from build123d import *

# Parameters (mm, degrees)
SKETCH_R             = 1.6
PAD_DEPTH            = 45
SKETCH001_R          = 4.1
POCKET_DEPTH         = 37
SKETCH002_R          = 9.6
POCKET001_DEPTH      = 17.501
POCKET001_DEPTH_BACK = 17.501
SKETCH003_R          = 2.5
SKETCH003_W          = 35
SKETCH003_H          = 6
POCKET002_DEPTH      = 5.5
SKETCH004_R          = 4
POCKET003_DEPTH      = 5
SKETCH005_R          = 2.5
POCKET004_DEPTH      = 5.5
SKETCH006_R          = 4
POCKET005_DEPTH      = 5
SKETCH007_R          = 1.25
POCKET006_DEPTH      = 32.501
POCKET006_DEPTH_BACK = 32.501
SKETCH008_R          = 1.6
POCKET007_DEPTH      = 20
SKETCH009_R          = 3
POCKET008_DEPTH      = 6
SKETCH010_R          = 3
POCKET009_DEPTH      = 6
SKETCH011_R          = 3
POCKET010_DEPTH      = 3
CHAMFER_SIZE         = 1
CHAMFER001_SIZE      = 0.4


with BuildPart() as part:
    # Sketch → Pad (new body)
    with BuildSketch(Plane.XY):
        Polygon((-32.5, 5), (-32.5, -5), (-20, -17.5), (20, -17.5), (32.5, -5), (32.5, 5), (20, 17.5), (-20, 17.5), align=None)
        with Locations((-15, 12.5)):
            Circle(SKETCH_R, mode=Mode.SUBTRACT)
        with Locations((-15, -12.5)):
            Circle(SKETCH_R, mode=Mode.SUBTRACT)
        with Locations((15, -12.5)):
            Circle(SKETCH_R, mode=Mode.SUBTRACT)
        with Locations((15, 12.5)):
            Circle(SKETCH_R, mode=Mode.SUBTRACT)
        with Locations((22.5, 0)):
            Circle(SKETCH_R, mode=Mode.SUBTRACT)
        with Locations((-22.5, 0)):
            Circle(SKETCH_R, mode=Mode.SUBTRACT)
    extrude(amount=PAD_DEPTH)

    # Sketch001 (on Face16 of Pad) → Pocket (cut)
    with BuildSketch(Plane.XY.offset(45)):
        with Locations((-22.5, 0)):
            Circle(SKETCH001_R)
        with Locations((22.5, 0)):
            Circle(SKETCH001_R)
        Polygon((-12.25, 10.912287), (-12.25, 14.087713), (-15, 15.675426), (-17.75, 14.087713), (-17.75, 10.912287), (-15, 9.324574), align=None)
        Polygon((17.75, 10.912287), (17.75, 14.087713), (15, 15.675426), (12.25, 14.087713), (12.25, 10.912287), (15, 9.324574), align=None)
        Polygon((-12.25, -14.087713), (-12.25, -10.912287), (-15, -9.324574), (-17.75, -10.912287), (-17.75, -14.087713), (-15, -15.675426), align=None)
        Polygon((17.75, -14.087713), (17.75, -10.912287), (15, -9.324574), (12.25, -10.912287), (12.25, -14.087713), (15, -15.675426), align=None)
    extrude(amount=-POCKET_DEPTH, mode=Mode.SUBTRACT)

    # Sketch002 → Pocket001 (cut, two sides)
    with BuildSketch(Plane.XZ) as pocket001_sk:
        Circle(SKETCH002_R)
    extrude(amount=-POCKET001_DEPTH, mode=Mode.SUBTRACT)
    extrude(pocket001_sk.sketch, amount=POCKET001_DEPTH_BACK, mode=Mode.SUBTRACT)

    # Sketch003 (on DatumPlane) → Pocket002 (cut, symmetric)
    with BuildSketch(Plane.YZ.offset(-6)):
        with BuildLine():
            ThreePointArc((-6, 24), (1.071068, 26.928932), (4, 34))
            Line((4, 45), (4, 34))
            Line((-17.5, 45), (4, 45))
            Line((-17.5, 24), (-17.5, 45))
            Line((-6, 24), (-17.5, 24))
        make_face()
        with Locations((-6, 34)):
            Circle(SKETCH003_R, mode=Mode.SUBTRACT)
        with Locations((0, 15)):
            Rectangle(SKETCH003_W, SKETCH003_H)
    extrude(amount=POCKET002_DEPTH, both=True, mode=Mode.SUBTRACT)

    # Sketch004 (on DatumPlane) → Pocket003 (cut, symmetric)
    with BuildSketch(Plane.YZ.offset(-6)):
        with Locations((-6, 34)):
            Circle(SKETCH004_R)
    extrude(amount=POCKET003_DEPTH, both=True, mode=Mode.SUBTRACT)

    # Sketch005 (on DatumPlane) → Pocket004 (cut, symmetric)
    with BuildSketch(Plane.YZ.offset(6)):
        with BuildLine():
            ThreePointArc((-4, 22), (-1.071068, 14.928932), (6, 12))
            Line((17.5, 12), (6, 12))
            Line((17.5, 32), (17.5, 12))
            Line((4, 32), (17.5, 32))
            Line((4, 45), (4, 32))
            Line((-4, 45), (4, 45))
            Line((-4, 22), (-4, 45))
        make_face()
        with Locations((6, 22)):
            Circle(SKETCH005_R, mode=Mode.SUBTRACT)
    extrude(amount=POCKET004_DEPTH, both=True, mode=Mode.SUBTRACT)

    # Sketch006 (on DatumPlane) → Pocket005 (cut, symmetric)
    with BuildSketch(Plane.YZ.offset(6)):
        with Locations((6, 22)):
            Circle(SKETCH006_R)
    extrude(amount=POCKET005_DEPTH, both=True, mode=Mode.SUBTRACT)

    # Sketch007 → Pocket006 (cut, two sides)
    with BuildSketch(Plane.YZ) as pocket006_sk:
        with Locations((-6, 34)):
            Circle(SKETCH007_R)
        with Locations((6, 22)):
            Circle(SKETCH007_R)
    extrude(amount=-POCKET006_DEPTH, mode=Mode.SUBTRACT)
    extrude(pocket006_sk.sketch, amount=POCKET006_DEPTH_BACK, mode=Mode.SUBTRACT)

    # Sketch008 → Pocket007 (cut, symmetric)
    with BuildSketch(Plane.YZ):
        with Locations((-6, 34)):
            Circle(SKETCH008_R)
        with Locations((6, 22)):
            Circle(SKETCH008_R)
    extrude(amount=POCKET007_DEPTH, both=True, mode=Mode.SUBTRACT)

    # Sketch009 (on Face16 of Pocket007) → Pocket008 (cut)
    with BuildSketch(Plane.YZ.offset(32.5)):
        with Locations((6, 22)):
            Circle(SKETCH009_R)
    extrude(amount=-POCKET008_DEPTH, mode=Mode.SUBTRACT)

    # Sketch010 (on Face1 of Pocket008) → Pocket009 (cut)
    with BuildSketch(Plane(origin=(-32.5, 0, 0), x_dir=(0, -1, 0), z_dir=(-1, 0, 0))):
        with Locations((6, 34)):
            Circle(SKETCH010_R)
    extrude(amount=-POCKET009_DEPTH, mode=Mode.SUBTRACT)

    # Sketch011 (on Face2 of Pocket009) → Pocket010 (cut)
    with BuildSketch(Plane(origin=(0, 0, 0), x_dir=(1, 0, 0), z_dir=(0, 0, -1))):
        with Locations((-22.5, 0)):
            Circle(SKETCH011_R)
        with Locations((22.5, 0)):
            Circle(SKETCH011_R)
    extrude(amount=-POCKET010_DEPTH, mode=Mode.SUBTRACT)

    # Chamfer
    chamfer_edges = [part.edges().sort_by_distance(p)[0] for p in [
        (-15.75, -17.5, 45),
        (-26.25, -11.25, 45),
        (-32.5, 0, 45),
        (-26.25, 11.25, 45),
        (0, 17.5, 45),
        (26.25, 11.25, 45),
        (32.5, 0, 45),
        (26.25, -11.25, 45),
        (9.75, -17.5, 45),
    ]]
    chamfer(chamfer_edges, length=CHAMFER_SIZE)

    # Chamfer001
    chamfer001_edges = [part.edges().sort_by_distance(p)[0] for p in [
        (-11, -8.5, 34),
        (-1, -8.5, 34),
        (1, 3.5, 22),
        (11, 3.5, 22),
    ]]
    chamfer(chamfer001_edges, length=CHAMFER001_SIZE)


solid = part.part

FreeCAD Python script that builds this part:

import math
import FreeCAD as App
import Part
import Sketcher
Q = App.Units.Quantity


def edges_at(feature, points):
    """Names of the edges that pass closest to the given points."""
    edges = feature.Shape.Edges
    near = lambda p: min(range(len(edges)), key=lambda i: edges[i].distToShape(Part.Vertex(*p))[0])
    return sorted({f"Edge{near(p) + 1}" for p in points})


def add_polygon(sketch, points):
    """Adds a closed chain of lines whose ends are joined by coincident constraints."""
    first, n = sketch.GeometryCount, len(points)
    for a, b in zip(points, points[1:] + points[:1]):
        sketch.addGeometry(Part.LineSegment(App.Vector(*a, 0), App.Vector(*b, 0)), False)
    for i in range(n):
        sketch.addConstraint(Sketcher.Constraint("Coincident", first + i, 2, first + (i + 1) % n, 1))

doc = App.newDocument("Part")
body = doc.addObject("PartDesign::Body", "Body")

# Sketch on XY plane
sketch1 = body.newObject("Sketcher::SketchObject", "Sketch")
sketch1.AttachmentSupport = (doc.getObject("XY_Plane"), [""])
sketch1.MapMode = "FlatFace"
add_polygon(sketch1, [(-32.5, 5), (-32.5, -5), (-20, -17.5), (20, -17.5), (32.5, -5), (32.5, 5), (20, 17.5), (-20, 17.5)])  # lines 0-7
sketch1.addGeometry(Part.Circle(App.Vector(-15, -12.5, 0), App.Vector(0, 0, 1), 1.6), False)  # 8
sketch1.addGeometry(Part.Circle(App.Vector(15, -12.5, 0), App.Vector(0, 0, 1), 1.6), False)  # 9
sketch1.addGeometry(Part.Circle(App.Vector(-22.5, 0, 0), App.Vector(0, 0, 1), 1.6), False)  # 10
sketch1.addGeometry(Part.Circle(App.Vector(-15, 12.5, 0), App.Vector(0, 0, 1), 1.6), False)  # 11
sketch1.addGeometry(Part.Circle(App.Vector(22.5, 0, 0), App.Vector(0, 0, 1), 1.6), False)  # 12
sketch1.addGeometry(Part.Circle(App.Vector(15, 12.5, 0), App.Vector(0, 0, 1), 1.6), False)  # 13
sketch1.addConstraint([
    Sketcher.Constraint("Vertical", 0),
    Sketcher.Constraint("Horizontal", 2),
    Sketcher.Constraint("Vertical", 4),
    Sketcher.Constraint("Horizontal", 6),
    Sketcher.Constraint("Equal", 8, 9),
    Sketcher.Constraint("Equal", 9, 10),
    Sketcher.Constraint("Equal", 10, 11),
    Sketcher.Constraint("Equal", 11, 12),
    Sketcher.Constraint("Equal", 12, 13),
    Sketcher.Constraint("Symmetric", 9, 3, 11, 3, -1, 1),
    Sketcher.Constraint("Symmetric", 10, 3, 12, 3, -1, 1),
    Sketcher.Constraint("Symmetric", 8, 3, 13, 3, -1, 1),
    Sketcher.Constraint("Symmetric", 0, 2, 4, 2, -1, 1),
    Sketcher.Constraint("Symmetric", 1, 2, 5, 2, -1, 1),
    Sketcher.Constraint("Symmetric", 8, 3, 9, 3, -2),
    Sketcher.Constraint("PointOnObject", 10, 3, -1),
    Sketcher.Constraint("Perpendicular", 1, 3),
    Sketcher.Constraint("Perpendicular", 5, 7),
    Sketcher.Constraint("Horizontal", 0, 2, 3, 2),
    Sketcher.Constraint("Horizontal", 4, 2, 7, 2),
    Sketcher.Constraint("Vertical", 2, 2, 5, 2),
    Sketcher.Constraint("Diameter", 8, Q("3.2 mm")),
    Sketcher.Constraint("DistanceX", 2, 1, 2, 2, Q("40 mm")),
    Sketcher.Constraint("DistanceY", 0, 2, 0, 1, Q("10 mm")),
    Sketcher.Constraint("DistanceX", 8, 3, -1, 1, Q("15 mm")),
    Sketcher.Constraint("DistanceY", 8, 3, 11, 3, Q("25 mm")),
    Sketcher.Constraint("DistanceX", 10, 3, 12, 3, Q("45 mm")),
    Sketcher.Constraint("DistanceX", 0, 2, 10, 3, Q("10 mm")),
])
pad1 = body.newObject("PartDesign::Pad", "Pad")
pad1.Profile = sketch1
pad1.Length = 45

# Sketch on XY plane
sketch2 = body.newObject("Sketcher::SketchObject", "Sketch001")
sketch2.AttachmentSupport = (doc.getObject("XY_Plane"), [""])
sketch2.MapMode = "FlatFace"
sketch2.AttachmentOffset = App.Placement(App.Vector(0, 0, 45), App.Rotation())
sketch2.addGeometry(Part.Circle(App.Vector(-22.5, 0, 0), App.Vector(0, 0, 1), 4.1), False)  # 0
sketch2.addGeometry(Part.Circle(App.Vector(22.5, 0, 0), App.Vector(0, 0, 1), 4.1), False)  # 1
add_polygon(sketch2, [(-12.2, 10.9), (-12.2, 14.1), (-15, 15.7), (-17.8, 14.1), (-17.8, 10.9), (-15, 9.3)])  # lines 2-7
add_polygon(sketch2, [(17.8, 10.9), (17.8, 14.1), (15, 15.7), (12.2, 14.1), (12.2, 10.9), (15, 9.3)])  # lines 8-13
add_polygon(sketch2, [(-12.2, -14.1), (-12.2, -10.9), (-15, -9.3), (-17.8, -10.9), (-17.8, -14.1), (-15, -15.7)])  # lines 14-19
add_polygon(sketch2, [(17.8, -14.1), (17.8, -10.9), (15, -9.3), (12.2, -10.9), (12.2, -14.1), (15, -15.7)])  # lines 20-25
sketch2.addConstraint([
    Sketcher.Constraint("Vertical", 2),
    Sketcher.Constraint("Vertical", 5),
    Sketcher.Constraint("Vertical", 8),
    Sketcher.Constraint("Vertical", 11),
    Sketcher.Constraint("Vertical", 14),
    Sketcher.Constraint("Vertical", 17),
    Sketcher.Constraint("Vertical", 20),
    Sketcher.Constraint("Vertical", 23),
    Sketcher.Constraint("Equal", 0, 1),
    Sketcher.Constraint("Symmetric", 0, 3, 1, 3, -1, 1),
    Sketcher.Constraint("Symmetric", 11, 2, 14, 2, -1, 1),
    Sketcher.Constraint("Symmetric", 12, 2, 15, 2, -1, 1),
    Sketcher.Constraint("Symmetric", 13, 2, 16, 2, -1, 1),
    Sketcher.Constraint("Symmetric", 9, 2, 18, 2, -1, 1),
    Sketcher.Constraint("Symmetric", 5, 2, 20, 2, -1, 1),
    Sketcher.Constraint("Symmetric", 6, 2, 21, 2, -1, 1),
    Sketcher.Constraint("Symmetric", 7, 2, 22, 2, -1, 1),
    Sketcher.Constraint("Symmetric", 3, 2, 24, 2, -1, 1),
    Sketcher.Constraint("Symmetric", 4, 2, 8, 2, -2),
    Sketcher.Constraint("Symmetric", 3, 2, 9, 2, -2),
    Sketcher.Constraint("Symmetric", 2, 2, 10, 2, -2),
    Sketcher.Constraint("Symmetric", 6, 2, 12, 2, -2),
    Sketcher.Constraint("PointOnObject", 0, 3, -1),
    Sketcher.Constraint("Parallel", 3, 6),
    Sketcher.Constraint("Parallel", 4, 7),
    Sketcher.Constraint("Parallel", 6, 9),
    Sketcher.Constraint("Parallel", 9, 12),
    Sketcher.Constraint("Parallel", 10, 13),
    Sketcher.Constraint("Parallel", 15, 18),
    Sketcher.Constraint("Parallel", 16, 19),
    Sketcher.Constraint("Parallel", 21, 24),
    Sketcher.Constraint("Parallel", 22, 25),
    Sketcher.Constraint("Horizontal", 2, 2, 4, 2),
    Sketcher.Constraint("Horizontal", 5, 2, 7, 2),
    Sketcher.Constraint("Diameter", 0, Q("8.2 mm")),
    Sketcher.Constraint("Angle", 3, Q("150.000004 deg")),
    Sketcher.Constraint("DistanceX", 3, 2, -1, 1, Q("15 mm")),
    Sketcher.Constraint("DistanceX", 0, 3, 1, 3, Q("45 mm")),
    Sketcher.Constraint("DistanceY", 14, 2, 2, 2, Q("25 mm")),
    Sketcher.Constraint("DistanceX", 4, 2, 2, 2, Q("5.5 mm")),
    Sketcher.Constraint("DistanceY", 2, 1, 2, 2, Q("3.175426 mm")),
])
pocket1 = body.newObject("PartDesign::Pocket", "Pocket")
pocket1.Profile = sketch2
pocket1.Length = 37

# Sketch on XZ plane
sketch3 = body.newObject("Sketcher::SketchObject", "Sketch002")
sketch3.AttachmentSupport = (doc.getObject("XZ_Plane"), [""])
sketch3.MapMode = "FlatFace"
sketch3.addGeometry(Part.Circle(App.Vector(0, 0, 0), App.Vector(0, 0, 1), 10), False)
sketch3.addConstraint([
    Sketcher.Constraint("Coincident", 0, 3, -1, 1),
    Sketcher.Constraint("Diameter", 0, Q("19.2 mm")),
])
pocket2 = body.newObject("PartDesign::Pocket", "Pocket001")
pocket2.Profile = sketch3
pocket2.Type = "ThroughAll"
pocket2.Midplane = True

# Sketch on YZ plane
sketch4 = body.newObject("Sketcher::SketchObject", "Sketch003")
sketch4.AttachmentSupport = (doc.getObject("YZ_Plane"), [""])
sketch4.MapMode = "FlatFace"
sketch4.AttachmentOffset = App.Placement(App.Vector(0, 0, -6), App.Rotation())
sketch4.addGeometry(Part.ArcOfCircle(Part.Circle(App.Vector(-6, 34, 0), App.Vector(0, 0, 1), 10), math.radians(-90), math.radians(0)), False)  # 0
sketch4.addGeometry(Part.LineSegment(App.Vector(4, 34, 0), App.Vector(4, 45, 0)), False)  # 1
sketch4.addGeometry(Part.LineSegment(App.Vector(4, 45, 0), App.Vector(-17.5, 45, 0)), False)  # 2
sketch4.addGeometry(Part.LineSegment(App.Vector(-17.5, 45, 0), App.Vector(-17.5, 24, 0)), False)  # 3
sketch4.addGeometry(Part.LineSegment(App.Vector(-17.5, 24, 0), App.Vector(-6, 24, 0)), False)  # 4
sketch4.addGeometry(Part.Circle(App.Vector(-6, 34, 0), App.Vector(0, 0, 1), 2.5), False)  # 5
add_polygon(sketch4, [(-17.5, 18), (-17.5, 12), (17.5, 12), (17.5, 18)])  # lines 6-9
sketch4.addConstraint([
    Sketcher.Constraint("Tangent", 0, 2, 1, 1),
    Sketcher.Constraint("Coincident", 1, 2, 2, 1),
    Sketcher.Constraint("Coincident", 2, 2, 3, 1),
    Sketcher.Constraint("Coincident", 3, 2, 4, 1),
    Sketcher.Constraint("Tangent", 4, 2, 0, 1),
    Sketcher.Constraint("Vertical", 1),
    Sketcher.Constraint("Horizontal", 2),
    Sketcher.Constraint("Vertical", 3),
    Sketcher.Constraint("Horizontal", 4),
    Sketcher.Constraint("Vertical", 6),
    Sketcher.Constraint("Horizontal", 7),
    Sketcher.Constraint("Vertical", 8),
    Sketcher.Constraint("Horizontal", 9),
    Sketcher.Constraint("Coincident", 5, 3, 0, 3),
    Sketcher.Constraint("Vertical", 3, 2, 6, 2),
    Sketcher.Constraint("Diameter", 5, Q("5 mm")),
    Sketcher.Constraint("Radius", 0, Q("9.999999 mm")),
    Sketcher.Constraint("DistanceX", 7, 1, 7, 2, Q("35 mm")),
    Sketcher.Constraint("DistanceY", 1, 1, 1, 2, Q("11 mm")),
    Sketcher.Constraint("DistanceY", 6, 2, 6, 1, Q("6 mm")),
    Sketcher.Constraint("DistanceX", 2, 2, 2, 1, Q("21.5 mm")),
    Sketcher.Constraint("DistanceX", 0, 3, -1, 1, Q("5.999999 mm")),
    Sketcher.Constraint("DistanceY", -1, 1, 0, 3, Q("33.999999 mm")),
    Sketcher.Constraint("DistanceY", -1, 1, 6, 2, Q("12 mm")),
])
pocket3 = body.newObject("PartDesign::Pocket", "Pocket002")
pocket3.Profile = sketch4
pocket3.Length = 11
pocket3.Midplane = True

# Sketch on YZ plane
sketch5 = body.newObject("Sketcher::SketchObject", "Sketch004")
sketch5.AttachmentSupport = (doc.getObject("YZ_Plane"), [""])
sketch5.MapMode = "FlatFace"
sketch5.AttachmentOffset = App.Placement(App.Vector(0, 0, -6), App.Rotation())
sketch5.addGeometry(Part.Circle(App.Vector(-6, 34, 0), App.Vector(0, 0, 1), 4), False)
sketch5.addConstraint([
    Sketcher.Constraint("Diameter", 0, Q("8 mm")),
    Sketcher.Constraint("DistanceX", 0, 3, -1, 1, Q("6 mm")),
    Sketcher.Constraint("DistanceY", -1, 1, 0, 3, Q("34 mm")),
])
pocket4 = body.newObject("PartDesign::Pocket", "Pocket003")
pocket4.Profile = sketch5
pocket4.Length = 10
pocket4.Midplane = True

# Sketch on YZ plane
sketch6 = body.newObject("Sketcher::SketchObject", "Sketch005")
sketch6.AttachmentSupport = (doc.getObject("YZ_Plane"), [""])
sketch6.MapMode = "FlatFace"
sketch6.AttachmentOffset = App.Placement(App.Vector(0, 0, 6), App.Rotation())
sketch6.addGeometry([
    Part.ArcOfCircle(Part.Circle(App.Vector(6, 22, 0), App.Vector(0, 0, 1), 10), math.radians(180), math.radians(270)),  # 0
    Part.LineSegment(App.Vector(6, 12, 0), App.Vector(17.5, 12, 0)),  # 1
    Part.LineSegment(App.Vector(17.5, 12, 0), App.Vector(17.5, 32, 0)),  # 2
    Part.LineSegment(App.Vector(17.5, 32, 0), App.Vector(4, 32, 0)),  # 3
    Part.LineSegment(App.Vector(4, 32, 0), App.Vector(4, 45, 0)),  # 4
    Part.LineSegment(App.Vector(4, 45, 0), App.Vector(-4, 45, 0)),  # 5
    Part.LineSegment(App.Vector(-4, 45, 0), App.Vector(-4, 22, 0)),  # 6
    Part.Circle(App.Vector(6, 22, 0), App.Vector(0, 0, 1), 2.5),  # 7
], False)
sketch6.addConstraint([
    Sketcher.Constraint("Tangent", 0, 2, 1, 1),
    Sketcher.Constraint("Coincident", 1, 2, 2, 1),
    Sketcher.Constraint("Coincident", 2, 2, 3, 1),
    Sketcher.Constraint("Coincident", 3, 2, 4, 1),
    Sketcher.Constraint("Coincident", 4, 2, 5, 1),
    Sketcher.Constraint("Coincident", 5, 2, 6, 1),
    Sketcher.Constraint("Tangent", 6, 2, 0, 1),
    Sketcher.Constraint("Horizontal", 1),
    Sketcher.Constraint("Vertical", 2),
    Sketcher.Constraint("Horizontal", 3),
    Sketcher.Constraint("Vertical", 4),
    Sketcher.Constraint("Horizontal", 5),
    Sketcher.Constraint("Vertical", 6),
    Sketcher.Constraint("Coincident", 7, 3, 0, 3),
    Sketcher.Constraint("Diameter", 7, Q("5 mm")),
    Sketcher.Constraint("Radius", 0, Q("9.999999 mm")),
    Sketcher.Constraint("DistanceX", 5, 2, 5, 1, Q("8 mm")),
    Sketcher.Constraint("DistanceY", 2, 1, 2, 2, Q("20 mm")),
    Sketcher.Constraint("DistanceY", 4, 1, 4, 2, Q("13 mm")),
    Sketcher.Constraint("DistanceX", 1, 1, 1, 2, Q("11.5 mm")),
    Sketcher.Constraint("DistanceX", -1, 1, 0, 3, Q("5.999999 mm")),
    Sketcher.Constraint("DistanceY", -1, 1, 0, 3, Q("21.999999 mm")),
])
pocket5 = body.newObject("PartDesign::Pocket", "Pocket004")
pocket5.Profile = sketch6
pocket5.Length = 11
pocket5.Midplane = True

# Sketch on YZ plane
sketch7 = body.newObject("Sketcher::SketchObject", "Sketch006")
sketch7.AttachmentSupport = (doc.getObject("YZ_Plane"), [""])
sketch7.MapMode = "FlatFace"
sketch7.AttachmentOffset = App.Placement(App.Vector(0, 0, 6), App.Rotation())
sketch7.addGeometry(Part.Circle(App.Vector(6, 22, 0), App.Vector(0, 0, 1), 4), False)
sketch7.addConstraint([
    Sketcher.Constraint("Diameter", 0, Q("8 mm")),
    Sketcher.Constraint("DistanceX", -1, 1, 0, 3, Q("6 mm")),
    Sketcher.Constraint("DistanceY", -1, 1, 0, 3, Q("22 mm")),
])
pocket6 = body.newObject("PartDesign::Pocket", "Pocket005")
pocket6.Profile = sketch7
pocket6.Length = 10
pocket6.Midplane = True

# Sketch on YZ plane
sketch8 = body.newObject("Sketcher::SketchObject", "Sketch007")
sketch8.AttachmentSupport = (doc.getObject("YZ_Plane"), [""])
sketch8.MapMode = "FlatFace"
sketch8.addGeometry([
    Part.Circle(App.Vector(-6, 34, 0), App.Vector(0, 0, 1), 1.2),
    Part.Circle(App.Vector(6, 22, 0), App.Vector(0, 0, 1), 1.2),
], False)
sketch8.addConstraint([
    Sketcher.Constraint("Equal", 0, 1),
    Sketcher.Constraint("Diameter", 0, Q("2.5 mm")),
    Sketcher.Constraint("DistanceX", 0, 3, -1, 1, Q("6 mm")),
    Sketcher.Constraint("DistanceY", -1, 1, 0, 3, Q("34 mm")),
    Sketcher.Constraint("DistanceX", -1, 1, 1, 3, Q("6 mm")),
    Sketcher.Constraint("DistanceY", -1, 1, 1, 3, Q("22 mm")),
])
pocket7 = body.newObject("PartDesign::Pocket", "Pocket006")
pocket7.Profile = sketch8
pocket7.Type = "ThroughAll"
pocket7.Midplane = True

# Sketch on YZ plane
sketch9 = body.newObject("Sketcher::SketchObject", "Sketch008")
sketch9.AttachmentSupport = (doc.getObject("YZ_Plane"), [""])
sketch9.MapMode = "FlatFace"
sketch9.addGeometry([
    Part.Circle(App.Vector(-6, 34, 0), App.Vector(0, 0, 1), 1.6),
    Part.Circle(App.Vector(6, 22, 0), App.Vector(0, 0, 1), 1.6),
], False)
sketch9.addConstraint([
    Sketcher.Constraint("Equal", 0, 1),
    Sketcher.Constraint("Diameter", 0, Q("3.2 mm")),
    Sketcher.Constraint("DistanceX", 0, 3, -1, 1, Q("6 mm")),
    Sketcher.Constraint("DistanceY", -1, 1, 0, 3, Q("34 mm")),
    Sketcher.Constraint("DistanceX", -1, 1, 1, 3, Q("6 mm")),
    Sketcher.Constraint("DistanceY", -1, 1, 1, 3, Q("22 mm")),
])
pocket8 = body.newObject("PartDesign::Pocket", "Pocket007")
pocket8.Profile = sketch9
pocket8.Length = 40
pocket8.Midplane = True

# Sketch on YZ plane
sketch10 = body.newObject("Sketcher::SketchObject", "Sketch009")
sketch10.AttachmentSupport = (doc.getObject("YZ_Plane"), [""])
sketch10.MapMode = "FlatFace"
sketch10.AttachmentOffset = App.Placement(App.Vector(0, 0, 32.5), App.Rotation())
sketch10.addGeometry(Part.Circle(App.Vector(6, 22, 0), App.Vector(0, 0, 1), 3), False)
sketch10.addConstraint([
    Sketcher.Constraint("Diameter", 0, Q("6 mm")),
    Sketcher.Constraint("DistanceX", -1, 1, 0, 3, Q("6 mm")),
    Sketcher.Constraint("DistanceY", -1, 1, 0, 3, Q("22 mm")),
])
pocket9 = body.newObject("PartDesign::Pocket", "Pocket008")
pocket9.Profile = sketch10
pocket9.Length = 6

# Sketch on YZ plane
sketch11 = body.newObject("Sketcher::SketchObject", "Sketch010")
sketch11.AttachmentSupport = (doc.getObject("YZ_Plane"), [""])
sketch11.MapMode = "FlatFace"
sketch11.AttachmentOffset = App.Placement(App.Vector(0, 0, -32.5), App.Rotation())
sketch11.addGeometry(Part.Circle(App.Vector(-6, 34, 0), App.Vector(0, 0, 1), 3), False)
sketch11.addConstraint([
    Sketcher.Constraint("Diameter", 0, Q("6 mm")),
    Sketcher.Constraint("DistanceX", 0, 3, -1, 1, Q("6 mm")),
    Sketcher.Constraint("DistanceY", -1, 1, 0, 3, Q("34 mm")),
])
pocket10 = body.newObject("PartDesign::Pocket", "Pocket009")
pocket10.Profile = sketch11
pocket10.Length = 6
pocket10.Reversed = True

# Sketch on XY plane
sketch12 = body.newObject("Sketcher::SketchObject", "Sketch011")
sketch12.AttachmentSupport = (doc.getObject("XY_Plane"), [""])
sketch12.MapMode = "FlatFace"
sketch12.addGeometry([
    Part.Circle(App.Vector(-22.5, 0, 0), App.Vector(0, 0, 1), 3),
    Part.Circle(App.Vector(22.5, 0, 0), App.Vector(0, 0, 1), 3),
], False)
sketch12.addConstraint([
    Sketcher.Constraint("Equal", 0, 1),
    Sketcher.Constraint("Symmetric", 0, 3, 1, 3, -1, 1),
    Sketcher.Constraint("PointOnObject", 0, 3, -1),
    Sketcher.Constraint("Diameter", 0, Q("6 mm")),
    Sketcher.Constraint("DistanceX", 0, 3, 1, 3, Q("45 mm")),
])
pocket11 = body.newObject("PartDesign::Pocket", "Pocket010")
pocket11.Profile = sketch12
pocket11.Length = 3
pocket11.Reversed = True
doc.recompute()

chamfer = body.newObject("PartDesign::Chamfer", "Chamfer")
chamfer.Base = (pocket11, edges_at(pocket11, [
    (-15.75, -17.5, 45),
    (-26.25, -11.25, 45),
    (-32.5, 0, 45),
    (-26.25, 11.25, 45),
    (0, 17.5, 45),
    (26.25, 11.25, 45),
    (32.5, 0, 45),
    (26.25, -11.25, 45),
    (9.75, -17.5, 45),
]))
chamfer.Size = 1
doc.recompute()

chamfer2 = body.newObject("PartDesign::Chamfer", "Chamfer001")
chamfer2.Base = (chamfer, edges_at(chamfer, [
    (-11, -8.5, 34),
    (-1, -8.5, 34),
    (1, 3.5, 22),
    (11, 3.5, 22),
]))
chamfer2.Size = 0.4

doc.recompute()
